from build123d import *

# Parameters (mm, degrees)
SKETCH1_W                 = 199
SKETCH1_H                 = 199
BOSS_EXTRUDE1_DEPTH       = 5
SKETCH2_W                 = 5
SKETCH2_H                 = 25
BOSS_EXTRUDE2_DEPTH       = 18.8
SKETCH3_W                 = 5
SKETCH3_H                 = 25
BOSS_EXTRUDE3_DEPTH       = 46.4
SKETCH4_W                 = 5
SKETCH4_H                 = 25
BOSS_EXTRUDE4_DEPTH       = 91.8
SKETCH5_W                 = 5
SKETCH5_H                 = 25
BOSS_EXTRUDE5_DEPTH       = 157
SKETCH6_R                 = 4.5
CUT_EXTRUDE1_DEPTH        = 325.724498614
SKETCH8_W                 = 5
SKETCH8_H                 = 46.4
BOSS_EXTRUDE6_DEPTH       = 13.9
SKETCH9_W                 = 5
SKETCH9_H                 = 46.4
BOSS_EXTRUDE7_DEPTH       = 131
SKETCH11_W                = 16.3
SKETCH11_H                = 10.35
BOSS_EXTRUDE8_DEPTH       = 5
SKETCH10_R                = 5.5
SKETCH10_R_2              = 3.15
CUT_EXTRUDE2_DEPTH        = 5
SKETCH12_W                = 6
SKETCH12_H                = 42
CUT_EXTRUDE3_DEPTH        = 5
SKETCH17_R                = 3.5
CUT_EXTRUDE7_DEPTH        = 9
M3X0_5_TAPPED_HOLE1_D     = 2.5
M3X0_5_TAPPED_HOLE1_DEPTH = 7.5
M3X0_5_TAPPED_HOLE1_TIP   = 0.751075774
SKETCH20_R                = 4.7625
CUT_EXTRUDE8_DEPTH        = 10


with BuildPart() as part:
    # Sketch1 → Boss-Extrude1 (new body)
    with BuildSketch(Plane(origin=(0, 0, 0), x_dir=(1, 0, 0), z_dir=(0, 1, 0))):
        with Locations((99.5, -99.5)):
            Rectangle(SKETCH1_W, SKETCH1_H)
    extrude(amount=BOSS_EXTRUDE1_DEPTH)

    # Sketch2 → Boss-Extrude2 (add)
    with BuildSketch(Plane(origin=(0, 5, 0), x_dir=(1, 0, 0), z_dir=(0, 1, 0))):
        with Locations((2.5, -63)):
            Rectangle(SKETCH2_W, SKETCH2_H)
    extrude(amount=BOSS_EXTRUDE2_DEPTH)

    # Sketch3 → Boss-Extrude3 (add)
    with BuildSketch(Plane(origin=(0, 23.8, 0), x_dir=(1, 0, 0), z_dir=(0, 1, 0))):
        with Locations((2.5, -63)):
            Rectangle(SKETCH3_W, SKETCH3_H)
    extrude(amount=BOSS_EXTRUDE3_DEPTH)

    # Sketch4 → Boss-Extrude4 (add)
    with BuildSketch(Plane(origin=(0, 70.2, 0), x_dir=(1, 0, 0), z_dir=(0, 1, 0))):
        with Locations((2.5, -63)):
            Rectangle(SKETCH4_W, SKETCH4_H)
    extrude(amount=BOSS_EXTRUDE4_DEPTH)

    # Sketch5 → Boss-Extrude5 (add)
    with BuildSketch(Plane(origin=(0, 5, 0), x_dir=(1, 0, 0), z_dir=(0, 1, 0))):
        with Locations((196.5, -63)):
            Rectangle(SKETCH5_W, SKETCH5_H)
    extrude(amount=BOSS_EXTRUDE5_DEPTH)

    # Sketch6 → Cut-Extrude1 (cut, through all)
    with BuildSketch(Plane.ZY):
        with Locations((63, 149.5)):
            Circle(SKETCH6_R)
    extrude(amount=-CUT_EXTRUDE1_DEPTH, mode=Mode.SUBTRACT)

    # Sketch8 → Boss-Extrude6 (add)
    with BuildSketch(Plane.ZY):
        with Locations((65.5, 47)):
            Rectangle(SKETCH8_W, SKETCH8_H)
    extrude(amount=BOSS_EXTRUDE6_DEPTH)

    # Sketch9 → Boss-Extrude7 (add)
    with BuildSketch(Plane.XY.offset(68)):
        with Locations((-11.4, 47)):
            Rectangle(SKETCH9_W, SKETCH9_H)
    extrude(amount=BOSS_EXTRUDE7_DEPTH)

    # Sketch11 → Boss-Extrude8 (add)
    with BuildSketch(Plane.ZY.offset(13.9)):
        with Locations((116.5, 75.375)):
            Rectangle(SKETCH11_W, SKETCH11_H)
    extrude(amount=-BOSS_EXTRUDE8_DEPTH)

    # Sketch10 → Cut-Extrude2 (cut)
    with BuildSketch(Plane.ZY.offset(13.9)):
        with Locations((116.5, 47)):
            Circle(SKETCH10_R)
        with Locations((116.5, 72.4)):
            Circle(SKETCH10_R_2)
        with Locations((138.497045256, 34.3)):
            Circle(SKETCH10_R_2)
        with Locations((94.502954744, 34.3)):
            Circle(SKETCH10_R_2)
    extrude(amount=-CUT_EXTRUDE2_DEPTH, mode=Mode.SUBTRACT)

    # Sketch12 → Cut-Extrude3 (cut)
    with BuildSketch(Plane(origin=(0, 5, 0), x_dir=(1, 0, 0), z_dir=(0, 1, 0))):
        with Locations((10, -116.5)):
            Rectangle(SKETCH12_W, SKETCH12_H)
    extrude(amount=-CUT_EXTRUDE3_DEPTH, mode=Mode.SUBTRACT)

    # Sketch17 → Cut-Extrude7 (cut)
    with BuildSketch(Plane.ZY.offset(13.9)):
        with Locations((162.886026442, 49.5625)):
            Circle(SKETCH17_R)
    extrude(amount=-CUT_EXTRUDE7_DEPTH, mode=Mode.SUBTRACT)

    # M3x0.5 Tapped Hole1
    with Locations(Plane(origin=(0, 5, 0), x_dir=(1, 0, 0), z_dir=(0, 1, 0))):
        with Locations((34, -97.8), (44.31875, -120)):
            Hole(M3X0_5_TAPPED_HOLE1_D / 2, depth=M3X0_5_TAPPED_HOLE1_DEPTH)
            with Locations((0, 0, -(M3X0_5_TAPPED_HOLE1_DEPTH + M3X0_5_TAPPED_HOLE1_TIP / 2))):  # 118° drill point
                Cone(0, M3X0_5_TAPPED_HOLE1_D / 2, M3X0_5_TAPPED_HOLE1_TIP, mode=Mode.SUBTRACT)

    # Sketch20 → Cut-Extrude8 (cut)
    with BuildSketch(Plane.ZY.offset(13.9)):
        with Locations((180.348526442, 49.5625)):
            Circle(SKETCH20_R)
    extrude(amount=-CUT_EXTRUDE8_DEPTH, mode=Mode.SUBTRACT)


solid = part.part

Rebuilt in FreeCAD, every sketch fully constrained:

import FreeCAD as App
import Part
import Sketcher

V = App.Vector
Q = App.Units.Quantity


def add_polygon(sketch, points):
    """Adds a closed chain of lines whose ends are joined by coincident constraints."""
    first, n = sketch.GeometryCount, len(points)
    for a, b in zip(points, points[1:] + points[:1]):
        sketch.addGeometry(Part.LineSegment(App.Vector(*a, 0), App.Vector(*b, 0)), False)
    for i in range(n):
        sketch.addConstraint(Sketcher.Constraint("Coincident", first + i, 2, first + (i + 1) % n, 1))

doc = App.newDocument("Part")
params = doc.addObject("Spreadsheet::Sheet", "Params")
for row, (alias, value) in enumerate([
    ("sketch1_width", "199 mm"),
    ("pad1_length", "5 mm"),
    ("sketch2_width", "5 mm"),
    ("sketch2_height", "25 mm"),
    ("pad2_length", "18.8 mm"),
    ("sketch3_width", "5 mm"),
    ("sketch3_height", "25 mm"),
    ("pad3_length", "46.4 mm"),
    ("sketch4_width", "5 mm"),
    ("sketch4_height", "25 mm"),
    ("pad4_length", "91.8 mm"),
    ("sketch5_width", "5 mm"),
    ("sketch5_height", "25 mm"),
    ("pad5_length", "157 mm"),
    ("sketch6_diameter", "9 mm"),
    ("sketch7_height", "5 mm"),
    ("sketch7_width", "46.4 mm"),
    ("pad6_length", "13.9 mm"),
    ("sketch8_width", "5 mm"),
    ("sketch8_height", "46.4 mm"),
    ("pad7_length", "131 mm"),
    ("sketch9_height", "16.3 mm"),
    ("sketch9_width", "10.35 mm"),
    ("pad8_length", "5 mm"),
    ("sketch10_diameter", "11 mm"),
    ("sketch10_diameter2", "6.3 mm"),
    ("pocket2_length", "5 mm"),
    ("sketch11_width", "6 mm"),
    ("sketch11_height", "42 mm"),
    ("pocket3_length", "5 mm"),
    ("sketch12_diameter", "7 mm"),
    ("pocket4_length", "9 mm"),
    ("sketch13_diameter", "2.5 mm"),
    ("hole_diameter", "2.5 mm"),
    ("hole_depth", "7.5 mm"),
    ("pocket5_length", "10 mm"),
], start=1):
    params.set(f"A{row}", alias)
    params.set(f"B{row}", "=" + value)
    params.setAlias(f"B{row}", alias)

body = doc.addObject("PartDesign::Body", "Body")

# Sketch on XZ plane
sketch1 = doc.addObject("Sketcher::SketchObject", "Sketch")
body.addObject(sketch1)
sketch1.AttachmentSupport = (doc.XZ_Plane, [""])
sketch1.MapMode = "FlatFace"
add_polygon(sketch1, [(0, 0), (0, 199), (199, 199), (199, 0)])  # lines 0-3
sketch1.addConstraint(Sketcher.Constraint("Vertical", 0))
sketch1.addConstraint(Sketcher.Constraint("Horizontal", 1))
sketch1.addConstraint(Sketcher.Constraint("Vertical", 2))
sketch1.addConstraint(Sketcher.Constraint("Horizontal", 3))
sketch1.addConstraint(Sketcher.Constraint("Coincident", 3, 2, -1, 1))
sketch1.addConstraint(Sketcher.Constraint("Equal", 3, 0))
sketch1.addConstraint(Sketcher.Constraint("DistanceX", 1, 1, 1, 2, Q("199 mm")))
sketch1.setExpression("Constraints[10]", "Params.sketch1_width")
pad1 = doc.addObject("PartDesign::Pad", "Pad")
body.addObject(pad1)
pad1.Profile = sketch1
pad1.setExpression("Length", "Params.pad1_length")
pad1.Reversed = True

# Sketch on XZ plane
sketch2 = doc.addObject("Sketcher::SketchObject", "Sketch001")
body.addObject(sketch2)
sketch2.AttachmentSupport = (doc.XZ_Plane, [""])
sketch2.MapMode = "FlatFace"
sketch2.AttachmentOffset = App.Placement(V(0, 0, -5), App.Rotation())
add_polygon(sketch2, [(0, 50), (0, 76), (5, 76), (5, 50)])  # lines 0-3
sketch2.addConstraint(Sketcher.Constraint("Vertical", 0))
sketch2.addConstraint(Sketcher.Constraint("Horizontal", 1))
sketch2.addConstraint(Sketcher.Constraint("Vertical", 2))
sketch2.addConstraint(Sketcher.Constraint("Horizontal", 3))
sketch2.addConstraint(Sketcher.Constraint("PointOnObject", 0, 2, -2))
sketch2.addConstraint(Sketcher.Constraint("DistanceX", 1, 1, 1, 2, Q("5 mm")))
sketch2.addConstraint(Sketcher.Constraint("DistanceY", 0, 1, 0, 2, Q("25 mm")))
sketch2.addConstraint(Sketcher.Constraint("DistanceY", -1, 1, 0, 2, Q("75.5 mm")))
sketch2.setExpression("Constraints[9]", "Params.sketch2_width")
sketch2.setExpression("Constraints[10]", "Params.sketch2_height")
pad2 = doc.addObject("PartDesign::Pad", "Pad001")
body.addObject(pad2)
pad2.Profile = sketch2
pad2.setExpression("Length", "Params.pad2_length")
pad2.Reversed = True

# Sketch on XZ plane
sketch3 = doc.addObject("Sketcher::SketchObject", "Sketch002")
body.addObject(sketch3)
sketch3.AttachmentSupport = (doc.XZ_Plane, [""])
sketch3.MapMode = "FlatFace"
sketch3.AttachmentOffset = App.Placement(V(0, 0, -23.8), App.Rotation())
add_polygon(sketch3, [(0, 50), (0, 76), (5, 76), (5, 50)])  # lines 0-3
sketch3.addConstraint(Sketcher.Constraint("Vertical", 0))
sketch3.addConstraint(Sketcher.Constraint("Horizontal", 1))
sketch3.addConstraint(Sketcher.Constraint("Vertical", 2))
sketch3.addConstraint(Sketcher.Constraint("Horizontal", 3))
sketch3.addConstraint(Sketcher.Constraint("PointOnObject", 0, 2, -2))
sketch3.addConstraint(Sketcher.Constraint("DistanceX", 1, 1, 1, 2, Q("5 mm")))
sketch3.addConstraint(Sketcher.Constraint("DistanceY", 0, 1, 0, 2, Q("25 mm")))
sketch3.addConstraint(Sketcher.Constraint("DistanceY", -1, 1, 0, 2, Q("75.5 mm")))
sketch3.setExpression("Constraints[9]", "Params.sketch3_width")
sketch3.setExpression("Constraints[10]", "Params.sketch3_height")
pad3 = doc.addObject("PartDesign::Pad", "Pad002")
body.addObject(pad3)
pad3.Profile = sketch3
pad3.setExpression("Length", "Params.pad3_length")
pad3.Reversed = True

# Sketch on XZ plane
sketch4 = doc.addObject("Sketcher::SketchObject", "Sketch003")
body.addObject(sketch4)
sketch4.AttachmentSupport = (doc.XZ_Plane, [""])
sketch4.MapMode = "FlatFace"
sketch4.AttachmentOffset = App.Placement(V(0, 0, -70.2), App.Rotation())
add_polygon(sketch4, [(0, 50), (0, 76), (5, 76), (5, 50)])  # lines 0-3
sketch4.addConstraint(Sketcher.Constraint("Vertical", 0))
sketch4.addConstraint(Sketcher.Constraint("Horizontal", 1))
sketch4.addConstraint(Sketcher.Constraint("Vertical", 2))
sketch4.addConstraint(Sketcher.Constraint("Horizontal", 3))
sketch4.addConstraint(Sketcher.Constraint("PointOnObject", 0, 2, -2))
sketch4.addConstraint(Sketcher.Constraint("DistanceX", 1, 1, 1, 2, Q("5 mm")))
sketch4.addConstraint(Sketcher.Constraint("DistanceY", 0, 1, 0, 2, Q("25 mm")))
sketch4.addConstraint(Sketcher.Constraint("DistanceY", -1, 1, 0, 2, Q("75.5 mm")))
sketch4.setExpression("Constraints[9]", "Params.sketch4_width")
sketch4.setExpression("Constraints[10]", "Params.sketch4_height")
pad4 = doc.addObject("PartDesign::Pad", "Pad003")
body.addObject(pad4)
pad4.Profile = sketch4
pad4.setExpression("Length", "Params.pad4_length")
pad4.Reversed = True

# Sketch on XZ plane
sketch5 = doc.addObject("Sketcher::SketchObject", "Sketch004")
body.addObject(sketch5)
sketch5.AttachmentSupport = (doc.XZ_Plane, [""])
sketch5.MapMode = "FlatFace"
sketch5.AttachmentOffset = App.Placement(V(0, 0, -5), App.Rotation())
add_polygon(sketch5, [(194, 50), (194, 76), (199, 76), (199, 50)])  # lines 0-3
sketch5.addConstraint(Sketcher.Constraint("Vertical", 0))
sketch5.addConstraint(Sketcher.Constraint("Horizontal", 1))
sketch5.addConstraint(Sketcher.Constraint("Vertical", 2))
sketch5.addConstraint(Sketcher.Constraint("Horizontal", 3))
sketch5.addConstraint(Sketcher.Constraint("DistanceX", 1, 1, 1, 2, Q("5 mm")))
sketch5.addConstraint(Sketcher.Constraint("DistanceY", 0, 1, 0, 2, Q("25 mm")))
sketch5.addConstraint(Sketcher.Constraint("DistanceX", -1, 1, 0, 2, Q("194 mm")))
sketch5.addConstraint(Sketcher.Constraint("DistanceY", -1, 1, 0, 2, Q("75.5 mm")))
sketch5.setExpression("Constraints[8]", "Params.sketch5_width")
sketch5.setExpression("Constraints[9]", "Params.sketch5_height")
pad5 = doc.addObject("PartDesign::Pad", "Pad004")
body.addObject(pad5)
pad5.Profile = sketch5
pad5.setExpression("Length", "Params.pad5_length")
pad5.Reversed = True

# Sketch on YZ plane
sketch6 = doc.addObject("Sketcher::SketchObject", "Sketch005")
body.addObject(sketch6)
sketch6.AttachmentSupport = (doc.YZ_Plane, [""])
sketch6.MapMode = "FlatFace"
sketch6.addGeometry(Part.Circle(V(149.5, 63, 0), V(0, 0, 1), 4.5), False)
sketch6.addConstraint(Sketcher.Constraint("Diameter", 0, Q("9 mm")))
sketch6.addConstraint(Sketcher.Constraint("DistanceY", -1, 1, 0, 3, Q("63 mm")))
sketch6.addConstraint(Sketcher.Constraint("DistanceX", -1, 1, 0, 3, Q("149.5 mm")))
sketch6.setExpression("Constraints[0]", "Params.sketch6_diameter")
pocket1 = doc.addObject("PartDesign::Pocket", "Pocket")
body.addObject(pocket1)
pocket1.Profile = sketch6
pocket1.Type = "ThroughAll"
pocket1.Reversed = True

# Sketch on YZ plane
sketch7 = doc.addObject("Sketcher::SketchObject", "Sketch006")
body.addObject(sketch7)
sketch7.AttachmentSupport = (doc.YZ_Plane, [""])
sketch7.MapMode = "FlatFace"
add_polygon(sketch7, [(70, 63), (24, 63), (24, 68), (70, 68)])  # lines 0-3
sketch7.addConstraint(Sketcher.Constraint("Horizontal", 0))
sketch7.addConstraint(Sketcher.Constraint("Vertical", 1))
sketch7.addConstraint(Sketcher.Constraint("Horizontal", 2))
sketch7.addConstraint(Sketcher.Constraint("Vertical", 3))
sketch7.addConstraint(Sketcher.Constraint("DistanceY", 1, 1, 1, 2, Q("5 mm")))
sketch7.addConstraint(Sketcher.Constraint("DistanceX", 0, 2, 0, 1, Q("46.4 mm")))
sketch7.addConstraint(Sketcher.Constraint("DistanceY", -1, 1, 0, 2, Q("63 mm")))
sketch7.addConstraint(Sketcher.Constraint("DistanceX", -1, 1, 0, 2, Q("23.8 mm")))
sketch7.setExpression("Constraints[8]", "Params.sketch7_height")
sketch7.setExpression("Constraints[9]", "Params.sketch7_width")
pad6 = doc.addObject("PartDesign::Pad", "Pad005")
body.addObject(pad6)
pad6.Profile = sketch7
pad6.setExpression("Length", "Params.pad6_length")
pad6.Reversed = True

# Sketch on XY plane
sketch8 = doc.addObject("Sketcher::SketchObject", "Sketch007")
body.addObject(sketch8)
sketch8.AttachmentSupport = (doc.XY_Plane, [""])
sketch8.MapMode = "FlatFace"
sketch8.AttachmentOffset = App.Placement(V(0, 0, 68), App.Rotation())
add_polygon(sketch8, [(-14, 70), (-14, 24), (-9, 24), (-9, 70)])  # lines 0-3
sketch8.addConstraint(Sketcher.Constraint("Vertical", 0))
sketch8.addConstraint(Sketcher.Constraint("Horizontal", 1))
sketch8.addConstraint(Sketcher.Constraint("Vertical", 2))
sketch8.addConstraint(Sketcher.Constraint("Horizontal", 3))
sketch8.addConstraint(Sketcher.Constraint("DistanceX", 1, 1, 1, 2, Q("5 mm")))
sketch8.addConstraint(Sketcher.Constraint("DistanceY", 0, 2, 0, 1, Q("46.4 mm")))
sketch8.addConstraint(Sketcher.Constraint("DistanceX", 0, 2, -1, 1, Q("13.9 mm")))
sketch8.addConstraint(Sketcher.Constraint("DistanceY", -1, 1, 0, 2, Q("23.8 mm")))
sketch8.setExpression("Constraints[8]", "Params.sketch8_width")
sketch8.setExpression("Constraints[9]", "Params.sketch8_height")
pad7 = doc.addObject("PartDesign::Pad", "Pad006")
body.addObject(pad7)
pad7.Profile = sketch8
pad7.setExpression("Length", "Params.pad7_length")

# Sketch on YZ plane
sketch9 = doc.addObject("Sketcher::SketchObject", "Sketch008")
body.addObject(sketch9)
sketch9.AttachmentSupport = (doc.YZ_Plane, [""])
sketch9.MapMode = "FlatFace"
sketch9.AttachmentOffset = App.Placement(V(0, 0, -13.9), App.Rotation())
add_polygon(sketch9, [(81, 108), (70, 108), (70, 125), (81, 125)])  # lines 0-3
sketch9.addConstraint(Sketcher.Constraint("Horizontal", 0))
sketch9.addConstraint(Sketcher.Constraint("Vertical", 1))
sketch9.addConstraint(Sketcher.Constraint("Horizontal", 2))
sketch9.addConstraint(Sketcher.Constraint("Vertical", 3))
sketch9.addConstraint(Sketcher.Constraint("DistanceY", 1, 1, 1, 2, Q("16.3 mm")))
sketch9.addConstraint(Sketcher.Constraint("DistanceX", 0, 2, 0, 1, Q("10.35 mm")))
sketch9.addConstraint(Sketcher.Constraint("DistanceX", -1, 1, 0, 2, Q("70.2 mm")))
sketch9.addConstraint(Sketcher.Constraint("DistanceY", -1, 1, 0, 2, Q("108.35 mm")))
sketch9.setExpression("Constraints[8]", "Params.sketch9_height")
sketch9.setExpression("Constraints[9]", "Params.sketch9_width")
pad8 = doc.addObject("PartDesign::Pad", "Pad007")
body.addObject(pad8)
pad8.Profile = sketch9
pad8.setExpression("Length", "Params.pad8_length")

# Sketch on YZ plane
sketch10 = doc.addObject("Sketcher::SketchObject", "Sketch009")
body.addObject(sketch10)
sketch10.AttachmentSupport = (doc.YZ_Plane, [""])
sketch10.MapMode = "FlatFace"
sketch10.AttachmentOffset = App.Placement(V(0, 0, -13.9), App.Rotation())
sketch10.addGeometry(Part.Circle(V(47, 116.5, 0), V(0, 0, 1), 5.5), False)
sketch10.addGeometry(Part.Circle(V(72.4, 116.5, 0), V(0, 0, 1), 3.1), False)
sketch10.addGeometry(Part.Circle(V(34.3, 138.5, 0), V(0, 0, 1), 3.1), False)
sketch10.addGeometry(Part.Circle(V(34.3, 94.5, 0), V(0, 0, 1), 3.1), False)
sketch10.addConstraint(Sketcher.Constraint("Equal", 1, 2))
sketch10.addConstraint(Sketcher.Constraint("Equal", 2, 3))
sketch10.addConstraint(Sketcher.Constraint("Horizontal", 0, 3, 1, 3))
sketch10.addConstraint(Sketcher.Constraint("Vertical", 2, 3, 3, 3))
sketch10.addConstraint(Sketcher.Constraint("Diameter", 0, Q("11 mm")))
sketch10.addConstraint(Sketcher.Constraint("Diameter", 1, Q("6.3 mm")))
sketch10.addConstraint(Sketcher.Constraint("DistanceX", -1, 1, 0, 3, Q("47 mm")))
sketch10.addConstraint(Sketcher.Constraint("DistanceY", -1, 1, 0, 3, Q("116.5 mm")))
sketch10.addConstraint(Sketcher.Constraint("DistanceX", -1, 1, 1, 3, Q("72.4 mm")))
sketch10.addConstraint(Sketcher.Constraint("DistanceX", -1, 1, 2, 3, Q("34.3 mm")))
sketch10.addConstraint(Sketcher.Constraint("DistanceY", 3, 3, 2, 3, Q("43.994091 mm")))
sketch10.addConstraint(Sketcher.Constraint("DistanceY", -1, 1, 2, 3, Q("138.497045 mm")))
sketch10.setExpression("Constraints[4]", "Params.sketch10_diameter")
sketch10.setExpression("Constraints[5]", "Params.sketch10_diameter2")
pocket2 = doc.addObject("PartDesign::Pocket", "Pocket001")
body.addObject(pocket2)
pocket2.Profile = sketch10
pocket2.setExpression("Length", "Params.pocket2_length")
pocket2.Reversed = True

# Sketch on XZ plane
sketch11 = doc.addObject("Sketcher::SketchObject", "Sketch010")
body.addObject(sketch11)
sketch11.AttachmentSupport = (doc.XZ_Plane, [""])
sketch11.MapMode = "FlatFace"
sketch11.AttachmentOffset = App.Placement(V(0, 0, -5), App.Rotation())
add_polygon(sketch11, [(7, 96), (7, 138), (13, 138), (13, 96)])  # lines 0-3
sketch11.addConstraint(Sketcher.Constraint("Vertical", 0))
sketch11.addConstraint(Sketcher.Constraint("Horizontal", 1))
sketch11.addConstraint(Sketcher.Constraint("Vertical", 2))
sketch11.addConstraint(Sketcher.Constraint("Horizontal", 3))
sketch11.addConstraint(Sketcher.Constraint("DistanceX", 1, 1, 1, 2, Q("6 mm")))
sketch11.addConstraint(Sketcher.Constraint("DistanceY", 0, 1, 0, 2, Q("42 mm")))
sketch11.addConstraint(Sketcher.Constraint("DistanceX", -1, 1, 0, 2, Q("7 mm")))
sketch11.addConstraint(Sketcher.Constraint("DistanceY", -1, 1, 0, 2, Q("137.5 mm")))
sketch11.setExpression("Constraints[8]", "Params.sketch11_width")
sketch11.setExpression("Constraints[9]", "Params.sketch11_height")
pocket3 = doc.addObject("PartDesign::Pocket", "Pocket002")
body.addObject(pocket3)
pocket3.Profile = sketch11
pocket3.setExpression("Length", "Params.pocket3_length")
pocket3.Reversed = True

# Sketch on YZ plane
sketch12 = doc.addObject("Sketcher::SketchObject", "Sketch011")
body.addObject(sketch12)
sketch12.AttachmentSupport = (doc.YZ_Plane, [""])
sketch12.MapMode = "FlatFace"
sketch12.AttachmentOffset = App.Placement(V(0, 0, -13.9), App.Rotation())
sketch12.addGeometry(Part.Circle(V(49.6, 162.9, 0), V(0, 0, 1), 3.5), False)
sketch12.addConstraint(Sketcher.Constraint("Diameter", 0, Q("7 mm")))
sketch12.addConstraint(Sketcher.Constraint("DistanceX", -1, 1, 0, 3, Q("49.5625 mm")))
sketch12.addConstraint(Sketcher.Constraint("DistanceY", -1, 1, 0, 3, Q("162.886026 mm")))
sketch12.setExpression("Constraints[0]", "Params.sketch12_diameter")
pocket4 = doc.addObject("PartDesign::Pocket", "Pocket003")
body.addObject(pocket4)
pocket4.Profile = sketch12
pocket4.setExpression("Length", "Params.pocket4_length")
pocket4.Reversed = True

# Sketch on XZ plane
sketch13 = doc.addObject("Sketcher::SketchObject", "Sketch012")
body.addObject(sketch13)
sketch13.AttachmentSupport = (doc.XZ_Plane, [""])
sketch13.MapMode = "FlatFace"
sketch13.AttachmentOffset = App.Placement(V(0, 0, -5), App.Rotation())
sketch13.addGeometry(Part.Circle(V(34, 97.8, 0), V(0, 0, 1), 1.2), False)
sketch13.addGeometry(Part.Circle(V(44.3, 120, 0), V(0, 0, 1), 1.2), False)
sketch13.addConstraint(Sketcher.Constraint("Equal", 0, 1))
sketch13.addConstraint(Sketcher.Constraint("Diameter", 0, Q("2.5 mm")))
sketch13.addConstraint(Sketcher.Constraint("DistanceX", -1, 1, 0, 3, Q("34 mm")))
sketch13.addConstraint(Sketcher.Constraint("DistanceY", -1, 1, 1, 3, Q("120 mm")))
sketch13.addConstraint(Sketcher.Constraint("DistanceY", -1, 1, 0, 3, Q("97.8 mm")))
sketch13.addConstraint(Sketcher.Constraint("DistanceX", -1, 1, 1, 3, Q("44.31875 mm")))
sketch13.setExpression("Constraints[1]", "Params.sketch13_diameter")
doc.recompute()
hole = doc.addObject("PartDesign::Hole", "Hole")
body.addObject(hole)
hole.Profile = sketch13
hole.ThreadType = "None"
hole.setExpression("Diameter", "Params.hole_diameter")
hole.DepthType = "Dimension"
hole.setExpression("Depth", "Params.hole_depth")
hole.DrillPoint = "Angled"
hole.DrillPointAngle = 118
hole.Reversed = True

# Sketch on YZ plane
sketch14 = doc.addObject("Sketcher::SketchObject", "Sketch013")
body.addObject(sketch14)
sketch14.AttachmentSupport = (doc.YZ_Plane, [""])
sketch14.MapMode = "FlatFace"
sketch14.AttachmentOffset = App.Placement(V(0, 0, -13.9), App.Rotation())
sketch14.addGeometry(Part.Circle(V(49.6, 180.3, 0), V(0, 0, 1), 4.8), False)
sketch14.addConstraint(Sketcher.Constraint("Diameter", 0, Q("9.525 mm")))
sketch14.addConstraint(Sketcher.Constraint("DistanceX", -1, 1, 0, 3, Q("49.5625 mm")))
sketch14.addConstraint(Sketcher.Constraint("DistanceY", -1, 1, 0, 3, Q("180.348526 mm")))
pocket5 = doc.addObject("PartDesign::Pocket", "Pocket004")
body.addObject(pocket5)
pocket5.Profile = sketch14
pocket5.setExpression("Length", "Params.pocket5_length")
pocket5.Reversed = True

doc.recompute()
